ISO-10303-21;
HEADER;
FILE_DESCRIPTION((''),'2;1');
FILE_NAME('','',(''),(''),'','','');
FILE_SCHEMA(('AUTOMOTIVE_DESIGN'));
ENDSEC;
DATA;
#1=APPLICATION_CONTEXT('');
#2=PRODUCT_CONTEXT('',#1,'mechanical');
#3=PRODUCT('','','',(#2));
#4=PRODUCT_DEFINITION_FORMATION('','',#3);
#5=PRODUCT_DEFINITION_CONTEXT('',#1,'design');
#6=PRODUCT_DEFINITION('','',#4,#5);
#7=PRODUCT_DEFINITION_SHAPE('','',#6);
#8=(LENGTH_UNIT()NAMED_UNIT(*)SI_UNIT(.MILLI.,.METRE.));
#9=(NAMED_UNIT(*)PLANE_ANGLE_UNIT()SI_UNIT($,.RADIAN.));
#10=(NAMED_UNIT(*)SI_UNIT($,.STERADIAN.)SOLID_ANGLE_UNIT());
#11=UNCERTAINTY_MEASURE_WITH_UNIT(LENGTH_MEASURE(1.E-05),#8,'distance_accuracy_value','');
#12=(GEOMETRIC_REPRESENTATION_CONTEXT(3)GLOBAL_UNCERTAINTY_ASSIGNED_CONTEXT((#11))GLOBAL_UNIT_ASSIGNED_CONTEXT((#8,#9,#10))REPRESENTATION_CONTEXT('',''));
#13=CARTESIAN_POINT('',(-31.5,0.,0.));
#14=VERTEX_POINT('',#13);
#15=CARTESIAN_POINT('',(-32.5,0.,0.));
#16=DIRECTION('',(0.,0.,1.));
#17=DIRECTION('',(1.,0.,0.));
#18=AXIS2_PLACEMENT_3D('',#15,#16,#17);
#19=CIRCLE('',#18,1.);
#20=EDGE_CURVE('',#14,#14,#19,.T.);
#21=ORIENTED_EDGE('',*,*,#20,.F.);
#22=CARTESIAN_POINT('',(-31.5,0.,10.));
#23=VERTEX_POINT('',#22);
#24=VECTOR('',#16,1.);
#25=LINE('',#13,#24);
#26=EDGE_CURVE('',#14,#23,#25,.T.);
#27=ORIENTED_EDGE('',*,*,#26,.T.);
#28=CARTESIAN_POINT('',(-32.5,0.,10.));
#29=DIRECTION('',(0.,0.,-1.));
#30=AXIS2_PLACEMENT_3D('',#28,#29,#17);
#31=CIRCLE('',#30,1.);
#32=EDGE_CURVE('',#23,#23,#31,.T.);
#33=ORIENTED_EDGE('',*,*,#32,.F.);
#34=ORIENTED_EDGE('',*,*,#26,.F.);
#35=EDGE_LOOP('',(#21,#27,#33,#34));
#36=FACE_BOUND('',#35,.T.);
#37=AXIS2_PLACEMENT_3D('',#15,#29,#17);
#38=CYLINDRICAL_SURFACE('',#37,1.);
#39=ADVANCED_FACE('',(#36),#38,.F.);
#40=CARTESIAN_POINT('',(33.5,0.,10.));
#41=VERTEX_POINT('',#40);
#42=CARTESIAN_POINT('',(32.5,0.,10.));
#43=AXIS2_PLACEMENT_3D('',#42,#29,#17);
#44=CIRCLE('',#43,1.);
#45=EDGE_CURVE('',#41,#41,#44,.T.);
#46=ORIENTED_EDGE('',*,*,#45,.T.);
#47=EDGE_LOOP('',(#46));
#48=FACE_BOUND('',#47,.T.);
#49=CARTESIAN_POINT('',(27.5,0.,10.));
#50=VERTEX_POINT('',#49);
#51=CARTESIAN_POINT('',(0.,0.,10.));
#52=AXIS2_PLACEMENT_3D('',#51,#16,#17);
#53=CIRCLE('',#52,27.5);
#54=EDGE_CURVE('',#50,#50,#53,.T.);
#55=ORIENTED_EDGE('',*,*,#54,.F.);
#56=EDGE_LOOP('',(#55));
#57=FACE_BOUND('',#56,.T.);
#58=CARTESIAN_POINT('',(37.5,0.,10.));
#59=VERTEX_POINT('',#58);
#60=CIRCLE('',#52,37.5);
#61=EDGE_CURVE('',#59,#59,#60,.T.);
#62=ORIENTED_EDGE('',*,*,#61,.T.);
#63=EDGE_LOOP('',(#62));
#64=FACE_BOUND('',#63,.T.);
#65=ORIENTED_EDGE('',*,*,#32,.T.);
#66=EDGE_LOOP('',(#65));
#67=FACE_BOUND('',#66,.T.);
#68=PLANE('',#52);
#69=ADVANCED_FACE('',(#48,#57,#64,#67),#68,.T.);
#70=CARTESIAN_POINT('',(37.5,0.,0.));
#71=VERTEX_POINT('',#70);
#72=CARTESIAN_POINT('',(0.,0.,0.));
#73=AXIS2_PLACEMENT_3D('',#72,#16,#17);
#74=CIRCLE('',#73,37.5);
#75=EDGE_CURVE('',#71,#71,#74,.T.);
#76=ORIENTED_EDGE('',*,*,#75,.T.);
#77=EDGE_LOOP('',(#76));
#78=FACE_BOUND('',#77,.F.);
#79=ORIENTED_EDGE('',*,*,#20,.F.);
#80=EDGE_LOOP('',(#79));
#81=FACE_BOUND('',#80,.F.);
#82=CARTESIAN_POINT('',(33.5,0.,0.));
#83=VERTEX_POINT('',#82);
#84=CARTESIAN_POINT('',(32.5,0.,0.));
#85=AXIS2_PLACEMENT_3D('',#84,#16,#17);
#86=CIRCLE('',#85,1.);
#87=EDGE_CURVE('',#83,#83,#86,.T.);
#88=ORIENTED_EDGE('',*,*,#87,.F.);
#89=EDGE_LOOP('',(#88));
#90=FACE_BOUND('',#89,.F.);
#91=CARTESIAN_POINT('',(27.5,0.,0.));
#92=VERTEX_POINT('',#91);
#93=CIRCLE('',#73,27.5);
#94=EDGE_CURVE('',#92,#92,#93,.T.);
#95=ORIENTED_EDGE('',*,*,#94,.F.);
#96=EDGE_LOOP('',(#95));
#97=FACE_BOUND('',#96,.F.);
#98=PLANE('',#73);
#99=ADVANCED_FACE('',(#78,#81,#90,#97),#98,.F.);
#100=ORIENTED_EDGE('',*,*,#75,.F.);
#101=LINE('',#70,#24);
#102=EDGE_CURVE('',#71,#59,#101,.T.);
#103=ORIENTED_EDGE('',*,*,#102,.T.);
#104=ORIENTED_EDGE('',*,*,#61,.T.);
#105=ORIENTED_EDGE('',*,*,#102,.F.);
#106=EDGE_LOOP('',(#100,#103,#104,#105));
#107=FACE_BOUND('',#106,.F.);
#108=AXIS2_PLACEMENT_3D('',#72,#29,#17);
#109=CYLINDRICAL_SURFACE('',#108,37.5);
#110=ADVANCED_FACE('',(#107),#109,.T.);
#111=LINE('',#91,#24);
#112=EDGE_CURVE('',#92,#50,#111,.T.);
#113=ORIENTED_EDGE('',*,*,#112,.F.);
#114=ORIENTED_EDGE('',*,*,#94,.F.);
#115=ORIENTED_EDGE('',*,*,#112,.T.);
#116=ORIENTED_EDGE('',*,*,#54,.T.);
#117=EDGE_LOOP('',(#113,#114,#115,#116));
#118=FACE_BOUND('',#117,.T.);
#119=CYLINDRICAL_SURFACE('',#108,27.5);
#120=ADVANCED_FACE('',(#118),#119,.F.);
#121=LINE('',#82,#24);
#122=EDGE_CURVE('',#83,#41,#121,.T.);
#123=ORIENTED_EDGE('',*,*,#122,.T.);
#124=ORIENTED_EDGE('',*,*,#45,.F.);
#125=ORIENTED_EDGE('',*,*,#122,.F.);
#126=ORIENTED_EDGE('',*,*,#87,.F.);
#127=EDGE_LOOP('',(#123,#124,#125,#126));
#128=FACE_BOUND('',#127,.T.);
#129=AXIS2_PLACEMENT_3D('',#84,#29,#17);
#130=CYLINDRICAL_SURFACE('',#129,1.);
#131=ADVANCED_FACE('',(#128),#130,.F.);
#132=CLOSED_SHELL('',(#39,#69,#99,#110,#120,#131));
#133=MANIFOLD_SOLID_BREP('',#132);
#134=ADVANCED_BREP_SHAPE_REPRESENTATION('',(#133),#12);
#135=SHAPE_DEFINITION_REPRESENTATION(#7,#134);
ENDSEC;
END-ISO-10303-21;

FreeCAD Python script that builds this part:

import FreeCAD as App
import Part
import Sketcher

doc = App.newDocument("Part")
body = doc.addObject("PartDesign::Body", "Body")

sketch1 = doc.addObject("Sketcher::SketchObject", "Sketch")
body.addObject(sketch1)
sketch1.AttachmentSupport = (doc.XY_Plane, [""])
sketch1.MapMode = "FlatFace"
sketch1.addGeometry(Part.Circle(App.Vector(0, 0, 0), App.Vector(0, 0, 1), 37.5), False)
sketch1.addGeometry(Part.Circle(App.Vector(-32.5, 0, 0), App.Vector(0, 0, 1), 1), False)
sketch1.addGeometry(Part.Circle(App.Vector(32.5, 0, 0), App.Vector(0, 0, 1), 1), False)
sketch1.addGeometry(Part.Circle(App.Vector(0, 0, 0), App.Vector(0, 0, 1), 27.5), False)
sketch1.addConstraint(Sketcher.Constraint("Coincident", 0, 3, -1, 1))
sketch1.addConstraint(Sketcher.Constraint("Coincident", 3, 3, -1, 1))
sketch1.addConstraint(Sketcher.Constraint("Equal", 1, 2))
sketch1.addConstraint(Sketcher.Constraint("Symmetric", 1, 3, 2, 3, -1, 1))
sketch1.addConstraint(Sketcher.Constraint("PointOnObject", 1, 3, -1))
sketch1.addConstraint(Sketcher.Constraint("Diameter", 0, 75.0))
sketch1.addConstraint(Sketcher.Constraint("Diameter", 1, 2.0))
sketch1.addConstraint(Sketcher.Constraint("Diameter", 3, 55.0))
sketch1.addConstraint(Sketcher.Constraint("DistanceX", 1, 3, 2, 3, 65.0))
pad1 = doc.addObject("PartDesign::Pad", "Pad")
body.addObject(pad1)
pad1.Profile = sketch1
pad1.Length = 10

doc.recompute()
